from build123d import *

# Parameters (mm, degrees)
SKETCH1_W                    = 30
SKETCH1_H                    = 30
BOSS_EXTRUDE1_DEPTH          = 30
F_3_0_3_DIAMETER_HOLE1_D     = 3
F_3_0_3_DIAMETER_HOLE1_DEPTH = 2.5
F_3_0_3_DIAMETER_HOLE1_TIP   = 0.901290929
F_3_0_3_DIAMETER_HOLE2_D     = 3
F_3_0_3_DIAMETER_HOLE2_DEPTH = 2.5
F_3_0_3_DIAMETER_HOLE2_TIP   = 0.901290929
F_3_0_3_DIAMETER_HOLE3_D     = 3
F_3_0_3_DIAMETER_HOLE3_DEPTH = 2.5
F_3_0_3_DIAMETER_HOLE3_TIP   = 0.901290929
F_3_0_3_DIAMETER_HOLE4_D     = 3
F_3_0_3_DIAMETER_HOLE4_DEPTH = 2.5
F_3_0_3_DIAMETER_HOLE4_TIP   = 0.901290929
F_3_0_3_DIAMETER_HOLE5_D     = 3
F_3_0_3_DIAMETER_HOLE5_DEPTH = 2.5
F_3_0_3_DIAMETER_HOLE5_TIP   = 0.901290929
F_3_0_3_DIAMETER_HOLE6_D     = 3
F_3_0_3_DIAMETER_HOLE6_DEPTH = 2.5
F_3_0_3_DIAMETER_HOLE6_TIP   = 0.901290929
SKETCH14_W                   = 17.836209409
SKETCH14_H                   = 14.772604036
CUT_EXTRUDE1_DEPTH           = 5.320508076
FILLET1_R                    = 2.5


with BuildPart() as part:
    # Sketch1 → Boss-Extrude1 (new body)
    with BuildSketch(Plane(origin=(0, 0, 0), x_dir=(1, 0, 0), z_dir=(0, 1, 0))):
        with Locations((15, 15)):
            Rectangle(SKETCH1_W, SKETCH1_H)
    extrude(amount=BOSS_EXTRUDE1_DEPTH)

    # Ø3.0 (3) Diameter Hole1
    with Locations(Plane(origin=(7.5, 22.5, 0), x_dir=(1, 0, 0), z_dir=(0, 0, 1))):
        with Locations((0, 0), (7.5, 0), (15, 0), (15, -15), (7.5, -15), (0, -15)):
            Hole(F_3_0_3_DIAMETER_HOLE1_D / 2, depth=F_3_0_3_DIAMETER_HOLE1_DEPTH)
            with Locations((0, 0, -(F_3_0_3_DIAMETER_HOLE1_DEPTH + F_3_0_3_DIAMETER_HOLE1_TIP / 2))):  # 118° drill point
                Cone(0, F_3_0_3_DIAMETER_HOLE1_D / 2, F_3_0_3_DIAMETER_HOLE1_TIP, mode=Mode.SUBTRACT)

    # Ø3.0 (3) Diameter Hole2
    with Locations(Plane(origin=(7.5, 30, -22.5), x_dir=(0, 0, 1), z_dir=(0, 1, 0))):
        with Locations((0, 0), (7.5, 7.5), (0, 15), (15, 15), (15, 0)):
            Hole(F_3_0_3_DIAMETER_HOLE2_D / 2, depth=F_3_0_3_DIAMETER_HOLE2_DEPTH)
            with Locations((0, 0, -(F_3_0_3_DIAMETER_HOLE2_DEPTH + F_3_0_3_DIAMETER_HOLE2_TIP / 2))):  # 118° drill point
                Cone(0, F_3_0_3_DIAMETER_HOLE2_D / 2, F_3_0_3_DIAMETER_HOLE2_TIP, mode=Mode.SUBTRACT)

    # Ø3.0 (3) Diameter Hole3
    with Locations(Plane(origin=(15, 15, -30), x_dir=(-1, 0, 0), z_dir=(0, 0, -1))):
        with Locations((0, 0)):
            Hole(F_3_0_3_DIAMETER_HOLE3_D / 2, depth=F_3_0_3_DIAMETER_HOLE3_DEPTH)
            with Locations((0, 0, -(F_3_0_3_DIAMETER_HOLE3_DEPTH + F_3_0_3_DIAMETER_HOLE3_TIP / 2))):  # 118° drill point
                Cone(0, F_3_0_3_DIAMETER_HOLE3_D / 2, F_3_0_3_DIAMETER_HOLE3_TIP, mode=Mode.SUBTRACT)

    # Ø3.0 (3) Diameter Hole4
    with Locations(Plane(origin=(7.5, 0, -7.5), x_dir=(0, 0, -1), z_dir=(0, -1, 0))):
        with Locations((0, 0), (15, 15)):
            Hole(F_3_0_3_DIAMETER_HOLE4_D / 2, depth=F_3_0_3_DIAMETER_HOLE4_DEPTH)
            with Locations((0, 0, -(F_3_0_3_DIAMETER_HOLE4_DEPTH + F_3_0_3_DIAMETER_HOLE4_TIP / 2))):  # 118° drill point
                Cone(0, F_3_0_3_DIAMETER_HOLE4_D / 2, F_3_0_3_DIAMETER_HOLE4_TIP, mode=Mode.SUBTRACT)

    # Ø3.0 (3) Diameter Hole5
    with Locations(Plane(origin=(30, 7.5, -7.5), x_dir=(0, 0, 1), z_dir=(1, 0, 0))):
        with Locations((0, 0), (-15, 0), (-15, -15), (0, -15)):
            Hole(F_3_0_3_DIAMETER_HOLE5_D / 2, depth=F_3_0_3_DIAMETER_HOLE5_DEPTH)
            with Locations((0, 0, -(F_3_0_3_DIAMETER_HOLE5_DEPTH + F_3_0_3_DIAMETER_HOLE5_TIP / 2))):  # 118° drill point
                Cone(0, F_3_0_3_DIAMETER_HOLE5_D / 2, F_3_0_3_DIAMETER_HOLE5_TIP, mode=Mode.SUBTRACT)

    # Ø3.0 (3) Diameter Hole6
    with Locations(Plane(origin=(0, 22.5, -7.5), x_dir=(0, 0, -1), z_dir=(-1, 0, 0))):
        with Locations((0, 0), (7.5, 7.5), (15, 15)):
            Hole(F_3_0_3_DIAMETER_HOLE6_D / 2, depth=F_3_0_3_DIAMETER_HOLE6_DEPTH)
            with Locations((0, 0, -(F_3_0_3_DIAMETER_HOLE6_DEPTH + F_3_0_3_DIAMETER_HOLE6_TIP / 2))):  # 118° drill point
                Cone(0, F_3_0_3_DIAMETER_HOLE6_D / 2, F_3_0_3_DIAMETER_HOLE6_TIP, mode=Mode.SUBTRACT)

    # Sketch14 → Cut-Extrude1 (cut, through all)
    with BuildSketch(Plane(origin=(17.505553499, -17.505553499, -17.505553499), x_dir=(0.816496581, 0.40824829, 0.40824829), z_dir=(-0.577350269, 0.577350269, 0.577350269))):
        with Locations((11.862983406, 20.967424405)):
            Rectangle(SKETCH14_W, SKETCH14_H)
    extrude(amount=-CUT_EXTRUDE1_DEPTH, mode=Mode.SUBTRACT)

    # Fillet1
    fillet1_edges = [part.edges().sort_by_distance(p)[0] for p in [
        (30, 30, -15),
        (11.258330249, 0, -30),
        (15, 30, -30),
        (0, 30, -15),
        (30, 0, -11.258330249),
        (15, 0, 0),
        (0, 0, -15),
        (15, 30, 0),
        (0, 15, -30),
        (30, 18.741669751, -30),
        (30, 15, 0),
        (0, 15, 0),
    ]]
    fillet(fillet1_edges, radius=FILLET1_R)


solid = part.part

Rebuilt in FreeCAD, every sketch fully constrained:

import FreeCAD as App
import Part
import Sketcher
from FreeCAD import Vector


def edges_at(feature, points):
    """Names of the edges that pass closest to the given points."""
    edges = feature.Shape.Edges
    near = lambda p: min(range(len(edges)), key=lambda i: edges[i].distToShape(Part.Vertex(*p))[0])
    return sorted({f"Edge{near(p) + 1}" for p in points})

doc = App.newDocument("Part")
body = doc.addObject("PartDesign::Body", "Body")

sketch1 = doc.addObject("Sketcher::SketchObject", "Sketch")
body.addObject(sketch1)
sketch1.AttachmentSupport = (doc.XZ_Plane, [""])
sketch1.MapMode = "FlatFace"
sketch1.addGeometry(Part.LineSegment(Vector(0, -30, 0), Vector(0, 0, 0)), False)
sketch1.addGeometry(Part.LineSegment(Vector(0, 0, 0), Vector(30, 0, 0)), False)
sketch1.addGeometry(Part.LineSegment(Vector(30, 0, 0), Vector(30, -30, 0)), False)
sketch1.addGeometry(Part.LineSegment(Vector(30, -30, 0), Vector(0, -30, 0)), False)
sketch1.addConstraint(Sketcher.Constraint("Coincident", 0, 2, 1, 1))
sketch1.addConstraint(Sketcher.Constraint("Coincident", 1, 2, 2, 1))
sketch1.addConstraint(Sketcher.Constraint("Coincident", 2, 2, 3, 1))
sketch1.addConstraint(Sketcher.Constraint("Coincident", 3, 2, 0, 1))
sketch1.addConstraint(Sketcher.Constraint("Vertical", 0))
sketch1.addConstraint(Sketcher.Constraint("Horizontal", 1))
sketch1.addConstraint(Sketcher.Constraint("Vertical", 2))
sketch1.addConstraint(Sketcher.Constraint("Horizontal", 3))
sketch1.addConstraint(Sketcher.Constraint("Coincident", 0, 2, -1, 1))
sketch1.addConstraint(Sketcher.Constraint("Equal", 3, 0))
sketch1.addConstraint(Sketcher.Constraint("DistanceX", 1, 1, 1, 2, 30.0))
pad1 = doc.addObject("PartDesign::Pad", "Pad")
body.addObject(pad1)
pad1.Profile = sketch1
pad1.Length = 30
pad1.Reversed = True

sketch2 = doc.addObject("Sketcher::SketchObject", "Sketch001")
body.addObject(sketch2)
sketch2.AttachmentSupport = (doc.XY_Plane, [""])
sketch2.MapMode = "FlatFace"
sketch2.addGeometry(Part.Circle(Vector(7.5, 22.5, 0), Vector(0, 0, 1), 1.5), False)
sketch2.addGeometry(Part.Circle(Vector(15, 22.5, 0), Vector(0, 0, 1), 1.5), False)
sketch2.addGeometry(Part.Circle(Vector(22.5, 22.5, 0), Vector(0, 0, 1), 1.5), False)
sketch2.addGeometry(Part.Circle(Vector(22.5, 7.5, 0), Vector(0, 0, 1), 1.5), False)
sketch2.addGeometry(Part.Circle(Vector(15, 7.5, 0), Vector(0, 0, 1), 1.5), False)
sketch2.addGeometry(Part.Circle(Vector(7.5, 7.5, 0), Vector(0, 0, 1), 1.5), False)
sketch2.addConstraint(Sketcher.Constraint("Equal", 0, 1))
sketch2.addConstraint(Sketcher.Constraint("Equal", 1, 2))
sketch2.addConstraint(Sketcher.Constraint("Equal", 2, 3))
sketch2.addConstraint(Sketcher.Constraint("Equal", 3, 4))
sketch2.addConstraint(Sketcher.Constraint("Equal", 4, 5))
sketch2.addConstraint(Sketcher.Constraint("Horizontal", 0, 3, 1, 3))
sketch2.addConstraint(Sketcher.Constraint("Horizontal", 1, 3, 2, 3))
sketch2.addConstraint(Sketcher.Constraint("Horizontal", 3, 3, 4, 3))
sketch2.addConstraint(Sketcher.Constraint("Horizontal", 4, 3, 5, 3))
sketch2.addConstraint(Sketcher.Constraint("Vertical", 2, 3, 3, 3))
sketch2.addConstraint(Sketcher.Constraint("Vertical", 1, 3, 4, 3))
sketch2.addConstraint(Sketcher.Constraint("Vertical", 0, 3, 5, 3))
sketch2.addConstraint(Sketcher.Constraint("Diameter", 0, 3.0))
sketch2.addConstraint(Sketcher.Constraint("DistanceX", -1, 1, 1, 3, 15.0))
sketch2.addConstraint(Sketcher.Constraint("DistanceX", 0, 3, 2, 3, 15.0))
sketch2.addConstraint(Sketcher.Constraint("DistanceY", 3, 3, 2, 3, 15.0))
sketch2.addConstraint(Sketcher.Constraint("DistanceX", -1, 1, 0, 3, 7.5))
sketch2.addConstraint(Sketcher.Constraint("DistanceY", -1, 1, 0, 3, 22.5))
doc.recompute()
hole = doc.addObject("PartDesign::Hole", "Hole")
body.addObject(hole)
hole.Profile = sketch2
hole.ThreadType = "None"
hole.Diameter = 3
hole.DepthType = "Dimension"
hole.Depth = 2.5
hole.DrillPoint = "Angled"
hole.DrillPointAngle = 118

sketch3 = doc.addObject("Sketcher::SketchObject", "Sketch002")
body.addObject(sketch3)
sketch3.AttachmentSupport = (doc.XZ_Plane, [""])
sketch3.MapMode = "FlatFace"
sketch3.AttachmentOffset = App.Placement(Vector(0, 0, -30), App.Rotation())
sketch3.addGeometry(Part.Circle(Vector(7.5, -22.5, 0), Vector(0, 0, 1), 1.5), False)
sketch3.addGeometry(Part.Circle(Vector(15, -15, 0), Vector(0, 0, 1), 1.5), False)
sketch3.addGeometry(Part.Circle(Vector(22.5, -22.5, 0), Vector(0, 0, 1), 1.5), False)
sketch3.addGeometry(Part.Circle(Vector(22.5, -7.5, 0), Vector(0, 0, 1), 1.5), False)
sketch3.addGeometry(Part.Circle(Vector(7.5, -7.5, 0), Vector(0, 0, 1), 1.5), False)
sketch3.addConstraint(Sketcher.Constraint("Equal", 0, 1))
sketch3.addConstraint(Sketcher.Constraint("Equal", 1, 2))
sketch3.addConstraint(Sketcher.Constraint("Equal", 2, 3))
sketch3.addConstraint(Sketcher.Constraint("Equal", 3, 4))
sketch3.addConstraint(Sketcher.Constraint("Horizontal", 0, 3, 2, 3))
sketch3.addConstraint(Sketcher.Constraint("Horizontal", 3, 3, 4, 3))
sketch3.addConstraint(Sketcher.Constraint("Vertical", 2, 3, 3, 3))
sketch3.addConstraint(Sketcher.Constraint("Vertical", 0, 3, 4, 3))
sketch3.addConstraint(Sketcher.Constraint("Diameter", 0, 3.0))
sketch3.addConstraint(Sketcher.Constraint("DistanceX", -1, 1, 1, 3, 15.0))
sketch3.addConstraint(Sketcher.Constraint("DistanceY", 1, 3, -1, 1, 15.0))
sketch3.addConstraint(Sketcher.Constraint("DistanceX", 0, 3, 2, 3, 15.0))
sketch3.addConstraint(Sketcher.Constraint("DistanceY", 2, 3, 3, 3, 15.0))
sketch3.addConstraint(Sketcher.Constraint("DistanceX", -1, 1, 0, 3, 7.5))
sketch3.addConstraint(Sketcher.Constraint("DistanceY", 0, 3, -1, 1, 22.5))
doc.recompute()
hole2 = doc.addObject("PartDesign::Hole", "Hole001")
body.addObject(hole2)
hole2.Profile = sketch3
hole2.ThreadType = "None"
hole2.Diameter = 3
hole2.DepthType = "Dimension"
hole2.Depth = 2.5
hole2.DrillPoint = "Angled"
hole2.DrillPointAngle = 118
hole2.Reversed = True

sketch4 = doc.addObject("Sketcher::SketchObject", "Sketch003")
body.addObject(sketch4)
sketch4.AttachmentSupport = (doc.XY_Plane, [""])
sketch4.MapMode = "FlatFace"
sketch4.AttachmentOffset = App.Placement(Vector(0, 0, -30), App.Rotation())
sketch4.addGeometry(Part.Circle(Vector(15, 15, 0), Vector(0, 0, 1), 1.5), False)
sketch4.addConstraint(Sketcher.Constraint("Diameter", 0, 3.0))
sketch4.addConstraint(Sketcher.Constraint("DistanceX", -1, 1, 0, 3, 15.0))
sketch4.addConstraint(Sketcher.Constraint("DistanceY", -1, 1, 0, 3, 15.0))
doc.recompute()
hole3 = doc.addObject("PartDesign::Hole", "Hole002")
body.addObject(hole3)
hole3.Profile = sketch4
hole3.ThreadType = "None"
hole3.Diameter = 3
hole3.DepthType = "Dimension"
hole3.Depth = 2.5
hole3.DrillPoint = "Angled"
hole3.DrillPointAngle = 118
hole3.Reversed = True

sketch5 = doc.addObject("Sketcher::SketchObject", "Sketch004")
body.addObject(sketch5)
sketch5.AttachmentSupport = (doc.XZ_Plane, [""])
sketch5.MapMode = "FlatFace"
sketch5.addGeometry(Part.Circle(Vector(7.5, -7.5, 0), Vector(0, 0, 1), 1.5), False)
sketch5.addGeometry(Part.Circle(Vector(22.5, -22.5, 0), Vector(0, 0, 1), 1.5), False)
sketch5.addConstraint(Sketcher.Constraint("Equal", 0, 1))
sketch5.addConstraint(Sketcher.Constraint("Diameter", 0, 3.0))
sketch5.addConstraint(Sketcher.Constraint("DistanceX", 0, 3, 1, 3, 15.0))
sketch5.addConstraint(Sketcher.Constraint("DistanceY", 1, 3, 0, 3, 15.0))
sketch5.addConstraint(Sketcher.Constraint("DistanceX", -1, 1, 0, 3, 7.5))
sketch5.addConstraint(Sketcher.Constraint("DistanceY", 0, 3, -1, 1, 7.5))
doc.recompute()
hole4 = doc.addObject("PartDesign::Hole", "Hole003")
body.addObject(hole4)
hole4.Profile = sketch5
hole4.ThreadType = "None"
hole4.Diameter = 3
hole4.DepthType = "Dimension"
hole4.Depth = 2.5
hole4.DrillPoint = "Angled"
hole4.DrillPointAngle = 118

sketch6 = doc.addObject("Sketcher::SketchObject", "Sketch005")
body.addObject(sketch6)
sketch6.AttachmentSupport = (doc.YZ_Plane, [""])
sketch6.MapMode = "FlatFace"
sketch6.AttachmentOffset = App.Placement(Vector(0, 0, 30), App.Rotation())
sketch6.addGeometry(Part.Circle(Vector(7.5, -7.5, 0), Vector(0, 0, 1), 1.5), False)
sketch6.addGeometry(Part.Circle(Vector(7.5, -22.5, 0), Vector(0, 0, 1), 1.5), False)
sketch6.addGeometry(Part.Circle(Vector(22.5, -22.5, 0), Vector(0, 0, 1), 1.5), False)
sketch6.addGeometry(Part.Circle(Vector(22.5, -7.5, 0), Vector(0, 0, 1), 1.5), False)
sketch6.addConstraint(Sketcher.Constraint("Equal", 0, 1))
sketch6.addConstraint(Sketcher.Constraint("Equal", 1, 2))
sketch6.addConstraint(Sketcher.Constraint("Equal", 2, 3))
sketch6.addConstraint(Sketcher.Constraint("Horizontal", 1, 3, 2, 3))
sketch6.addConstraint(Sketcher.Constraint("Horizontal", 0, 3, 3, 3))
sketch6.addConstraint(Sketcher.Constraint("Vertical", 0, 3, 1, 3))
sketch6.addConstraint(Sketcher.Constraint("Vertical", 2, 3, 3, 3))
sketch6.addConstraint(Sketcher.Constraint("Diameter", 0, 3.0))
sketch6.addConstraint(Sketcher.Constraint("DistanceY", 1, 3, 0, 3, 15.0))
sketch6.addConstraint(Sketcher.Constraint("DistanceX", 1, 3, 2, 3, 15.0))
sketch6.addConstraint(Sketcher.Constraint("DistanceX", -1, 1, 0, 3, 7.5))
sketch6.addConstraint(Sketcher.Constraint("DistanceY", 0, 3, -1, 1, 7.5))
doc.recompute()
hole5 = doc.addObject("PartDesign::Hole", "Hole004")
body.addObject(hole5)
hole5.Profile = sketch6
hole5.ThreadType = "None"
hole5.Diameter = 3
hole5.DepthType = "Dimension"
hole5.Depth = 2.5
hole5.DrillPoint = "Angled"
hole5.DrillPointAngle = 118

sketch7 = doc.addObject("Sketcher::SketchObject", "Sketch006")
body.addObject(sketch7)
sketch7.AttachmentSupport = (doc.YZ_Plane, [""])
sketch7.MapMode = "FlatFace"
sketch7.addGeometry(Part.Circle(Vector(22.5, -7.5, 0), Vector(0, 0, 1), 1.5), False)
sketch7.addGeometry(Part.Circle(Vector(15, -15, 0), Vector(0, 0, 1), 1.5), False)
sketch7.addGeometry(Part.Circle(Vector(7.5, -22.5, 0), Vector(0, 0, 1), 1.5), False)
sketch7.addConstraint(Sketcher.Constraint("Equal", 0, 1))
sketch7.addConstraint(Sketcher.Constraint("Equal", 1, 2))
sketch7.addConstraint(Sketcher.Constraint("Diameter", 0, 3.0))
sketch7.addConstraint(Sketcher.Constraint("DistanceX", -1, 1, 1, 3, 15.0))
sketch7.addConstraint(Sketcher.Constraint("DistanceY", 1, 3, -1, 1, 15.0))
sketch7.addConstraint(Sketcher.Constraint("DistanceX", 2, 3, 0, 3, 15.0))
sketch7.addConstraint(Sketcher.Constraint("DistanceY", 2, 3, 0, 3, 15.0))
sketch7.addConstraint(Sketcher.Constraint("DistanceX", -1, 1, 0, 3, 22.5))
sketch7.addConstraint(Sketcher.Constraint("DistanceY", 0, 3, -1, 1, 7.5))
doc.recompute()
hole6 = doc.addObject("PartDesign::Hole", "Hole005")
body.addObject(hole6)
hole6.Profile = sketch7
hole6.ThreadType = "None"
hole6.Diameter = 3
hole6.DepthType = "Dimension"
hole6.Depth = 2.5
hole6.DrillPoint = "Angled"
hole6.DrillPointAngle = 118
hole6.Reversed = True

sketch8 = doc.addObject("Sketcher::SketchObject", "Sketch007")
body.addObject(sketch8)
sketch8.Placement = App.Placement(Vector(17.505553, -17.505553, -17.505553), App.Rotation(Vector(0.816496581, 0.40824829, 0.40824829), Vector(0, 0.707106781, -0.707106781), Vector(-0.577350269, 0.577350269, 0.577350269), "ZXY"))
sketch8.addGeometry(Part.LineSegment(Vector(3, 28, 0), Vector(3, 14, 0)), False)
sketch8.addGeometry(Part.LineSegment(Vector(3, 14, 0), Vector(21, 14, 0)), False)
sketch8.addGeometry(Part.LineSegment(Vector(21, 14, 0), Vector(21, 28, 0)), False)
sketch8.addGeometry(Part.LineSegment(Vector(21, 28, 0), Vector(3, 28, 0)), False)
sketch8.addConstraint(Sketcher.Constraint("Coincident", 0, 2, 1, 1))
sketch8.addConstraint(Sketcher.Constraint("Coincident", 1, 2, 2, 1))
sketch8.addConstraint(Sketcher.Constraint("Coincident", 2, 2, 3, 1))
sketch8.addConstraint(Sketcher.Constraint("Coincident", 3, 2, 0, 1))
sketch8.addConstraint(Sketcher.Constraint("Vertical", 0))
sketch8.addConstraint(Sketcher.Constraint("Horizontal", 1))
sketch8.addConstraint(Sketcher.Constraint("Vertical", 2))
sketch8.addConstraint(Sketcher.Constraint("Horizontal", 3))
sketch8.addConstraint(Sketcher.Constraint("DistanceX", 1, 1, 1, 2, 17.836209))
sketch8.addConstraint(Sketcher.Constraint("DistanceY", 0, 2, 0, 1, 14.772604))
sketch8.addConstraint(Sketcher.Constraint("DistanceX", -1, 1, 0, 2, 2.944879))
sketch8.addConstraint(Sketcher.Constraint("DistanceY", -1, 1, 0, 2, 13.581122))
pocket1 = doc.addObject("PartDesign::Pocket", "Pocket")
body.addObject(pocket1)
pocket1.Profile = sketch8
pocket1.Type = "ThroughAll"
doc.recompute()

fillet = doc.addObject("PartDesign::Fillet", "Fillet")
body.addObject(fillet)
fillet.Base = (pocket1, edges_at(pocket1, [
    (30, 30, -15),
    (11.258, 0, -30),
    (15, 30, -30),
    (0, 30, -15),
    (30, 0, -11.258),
    (15, 0, 0),
    (0, 0, -15),
    (15, 30, 0),
    (0, 15, -30),
    (30, 18.742, -30),
    (30, 15, 0),
    (0, 15, 0),
]))
fillet.Radius = 2.5

doc.recompute()
